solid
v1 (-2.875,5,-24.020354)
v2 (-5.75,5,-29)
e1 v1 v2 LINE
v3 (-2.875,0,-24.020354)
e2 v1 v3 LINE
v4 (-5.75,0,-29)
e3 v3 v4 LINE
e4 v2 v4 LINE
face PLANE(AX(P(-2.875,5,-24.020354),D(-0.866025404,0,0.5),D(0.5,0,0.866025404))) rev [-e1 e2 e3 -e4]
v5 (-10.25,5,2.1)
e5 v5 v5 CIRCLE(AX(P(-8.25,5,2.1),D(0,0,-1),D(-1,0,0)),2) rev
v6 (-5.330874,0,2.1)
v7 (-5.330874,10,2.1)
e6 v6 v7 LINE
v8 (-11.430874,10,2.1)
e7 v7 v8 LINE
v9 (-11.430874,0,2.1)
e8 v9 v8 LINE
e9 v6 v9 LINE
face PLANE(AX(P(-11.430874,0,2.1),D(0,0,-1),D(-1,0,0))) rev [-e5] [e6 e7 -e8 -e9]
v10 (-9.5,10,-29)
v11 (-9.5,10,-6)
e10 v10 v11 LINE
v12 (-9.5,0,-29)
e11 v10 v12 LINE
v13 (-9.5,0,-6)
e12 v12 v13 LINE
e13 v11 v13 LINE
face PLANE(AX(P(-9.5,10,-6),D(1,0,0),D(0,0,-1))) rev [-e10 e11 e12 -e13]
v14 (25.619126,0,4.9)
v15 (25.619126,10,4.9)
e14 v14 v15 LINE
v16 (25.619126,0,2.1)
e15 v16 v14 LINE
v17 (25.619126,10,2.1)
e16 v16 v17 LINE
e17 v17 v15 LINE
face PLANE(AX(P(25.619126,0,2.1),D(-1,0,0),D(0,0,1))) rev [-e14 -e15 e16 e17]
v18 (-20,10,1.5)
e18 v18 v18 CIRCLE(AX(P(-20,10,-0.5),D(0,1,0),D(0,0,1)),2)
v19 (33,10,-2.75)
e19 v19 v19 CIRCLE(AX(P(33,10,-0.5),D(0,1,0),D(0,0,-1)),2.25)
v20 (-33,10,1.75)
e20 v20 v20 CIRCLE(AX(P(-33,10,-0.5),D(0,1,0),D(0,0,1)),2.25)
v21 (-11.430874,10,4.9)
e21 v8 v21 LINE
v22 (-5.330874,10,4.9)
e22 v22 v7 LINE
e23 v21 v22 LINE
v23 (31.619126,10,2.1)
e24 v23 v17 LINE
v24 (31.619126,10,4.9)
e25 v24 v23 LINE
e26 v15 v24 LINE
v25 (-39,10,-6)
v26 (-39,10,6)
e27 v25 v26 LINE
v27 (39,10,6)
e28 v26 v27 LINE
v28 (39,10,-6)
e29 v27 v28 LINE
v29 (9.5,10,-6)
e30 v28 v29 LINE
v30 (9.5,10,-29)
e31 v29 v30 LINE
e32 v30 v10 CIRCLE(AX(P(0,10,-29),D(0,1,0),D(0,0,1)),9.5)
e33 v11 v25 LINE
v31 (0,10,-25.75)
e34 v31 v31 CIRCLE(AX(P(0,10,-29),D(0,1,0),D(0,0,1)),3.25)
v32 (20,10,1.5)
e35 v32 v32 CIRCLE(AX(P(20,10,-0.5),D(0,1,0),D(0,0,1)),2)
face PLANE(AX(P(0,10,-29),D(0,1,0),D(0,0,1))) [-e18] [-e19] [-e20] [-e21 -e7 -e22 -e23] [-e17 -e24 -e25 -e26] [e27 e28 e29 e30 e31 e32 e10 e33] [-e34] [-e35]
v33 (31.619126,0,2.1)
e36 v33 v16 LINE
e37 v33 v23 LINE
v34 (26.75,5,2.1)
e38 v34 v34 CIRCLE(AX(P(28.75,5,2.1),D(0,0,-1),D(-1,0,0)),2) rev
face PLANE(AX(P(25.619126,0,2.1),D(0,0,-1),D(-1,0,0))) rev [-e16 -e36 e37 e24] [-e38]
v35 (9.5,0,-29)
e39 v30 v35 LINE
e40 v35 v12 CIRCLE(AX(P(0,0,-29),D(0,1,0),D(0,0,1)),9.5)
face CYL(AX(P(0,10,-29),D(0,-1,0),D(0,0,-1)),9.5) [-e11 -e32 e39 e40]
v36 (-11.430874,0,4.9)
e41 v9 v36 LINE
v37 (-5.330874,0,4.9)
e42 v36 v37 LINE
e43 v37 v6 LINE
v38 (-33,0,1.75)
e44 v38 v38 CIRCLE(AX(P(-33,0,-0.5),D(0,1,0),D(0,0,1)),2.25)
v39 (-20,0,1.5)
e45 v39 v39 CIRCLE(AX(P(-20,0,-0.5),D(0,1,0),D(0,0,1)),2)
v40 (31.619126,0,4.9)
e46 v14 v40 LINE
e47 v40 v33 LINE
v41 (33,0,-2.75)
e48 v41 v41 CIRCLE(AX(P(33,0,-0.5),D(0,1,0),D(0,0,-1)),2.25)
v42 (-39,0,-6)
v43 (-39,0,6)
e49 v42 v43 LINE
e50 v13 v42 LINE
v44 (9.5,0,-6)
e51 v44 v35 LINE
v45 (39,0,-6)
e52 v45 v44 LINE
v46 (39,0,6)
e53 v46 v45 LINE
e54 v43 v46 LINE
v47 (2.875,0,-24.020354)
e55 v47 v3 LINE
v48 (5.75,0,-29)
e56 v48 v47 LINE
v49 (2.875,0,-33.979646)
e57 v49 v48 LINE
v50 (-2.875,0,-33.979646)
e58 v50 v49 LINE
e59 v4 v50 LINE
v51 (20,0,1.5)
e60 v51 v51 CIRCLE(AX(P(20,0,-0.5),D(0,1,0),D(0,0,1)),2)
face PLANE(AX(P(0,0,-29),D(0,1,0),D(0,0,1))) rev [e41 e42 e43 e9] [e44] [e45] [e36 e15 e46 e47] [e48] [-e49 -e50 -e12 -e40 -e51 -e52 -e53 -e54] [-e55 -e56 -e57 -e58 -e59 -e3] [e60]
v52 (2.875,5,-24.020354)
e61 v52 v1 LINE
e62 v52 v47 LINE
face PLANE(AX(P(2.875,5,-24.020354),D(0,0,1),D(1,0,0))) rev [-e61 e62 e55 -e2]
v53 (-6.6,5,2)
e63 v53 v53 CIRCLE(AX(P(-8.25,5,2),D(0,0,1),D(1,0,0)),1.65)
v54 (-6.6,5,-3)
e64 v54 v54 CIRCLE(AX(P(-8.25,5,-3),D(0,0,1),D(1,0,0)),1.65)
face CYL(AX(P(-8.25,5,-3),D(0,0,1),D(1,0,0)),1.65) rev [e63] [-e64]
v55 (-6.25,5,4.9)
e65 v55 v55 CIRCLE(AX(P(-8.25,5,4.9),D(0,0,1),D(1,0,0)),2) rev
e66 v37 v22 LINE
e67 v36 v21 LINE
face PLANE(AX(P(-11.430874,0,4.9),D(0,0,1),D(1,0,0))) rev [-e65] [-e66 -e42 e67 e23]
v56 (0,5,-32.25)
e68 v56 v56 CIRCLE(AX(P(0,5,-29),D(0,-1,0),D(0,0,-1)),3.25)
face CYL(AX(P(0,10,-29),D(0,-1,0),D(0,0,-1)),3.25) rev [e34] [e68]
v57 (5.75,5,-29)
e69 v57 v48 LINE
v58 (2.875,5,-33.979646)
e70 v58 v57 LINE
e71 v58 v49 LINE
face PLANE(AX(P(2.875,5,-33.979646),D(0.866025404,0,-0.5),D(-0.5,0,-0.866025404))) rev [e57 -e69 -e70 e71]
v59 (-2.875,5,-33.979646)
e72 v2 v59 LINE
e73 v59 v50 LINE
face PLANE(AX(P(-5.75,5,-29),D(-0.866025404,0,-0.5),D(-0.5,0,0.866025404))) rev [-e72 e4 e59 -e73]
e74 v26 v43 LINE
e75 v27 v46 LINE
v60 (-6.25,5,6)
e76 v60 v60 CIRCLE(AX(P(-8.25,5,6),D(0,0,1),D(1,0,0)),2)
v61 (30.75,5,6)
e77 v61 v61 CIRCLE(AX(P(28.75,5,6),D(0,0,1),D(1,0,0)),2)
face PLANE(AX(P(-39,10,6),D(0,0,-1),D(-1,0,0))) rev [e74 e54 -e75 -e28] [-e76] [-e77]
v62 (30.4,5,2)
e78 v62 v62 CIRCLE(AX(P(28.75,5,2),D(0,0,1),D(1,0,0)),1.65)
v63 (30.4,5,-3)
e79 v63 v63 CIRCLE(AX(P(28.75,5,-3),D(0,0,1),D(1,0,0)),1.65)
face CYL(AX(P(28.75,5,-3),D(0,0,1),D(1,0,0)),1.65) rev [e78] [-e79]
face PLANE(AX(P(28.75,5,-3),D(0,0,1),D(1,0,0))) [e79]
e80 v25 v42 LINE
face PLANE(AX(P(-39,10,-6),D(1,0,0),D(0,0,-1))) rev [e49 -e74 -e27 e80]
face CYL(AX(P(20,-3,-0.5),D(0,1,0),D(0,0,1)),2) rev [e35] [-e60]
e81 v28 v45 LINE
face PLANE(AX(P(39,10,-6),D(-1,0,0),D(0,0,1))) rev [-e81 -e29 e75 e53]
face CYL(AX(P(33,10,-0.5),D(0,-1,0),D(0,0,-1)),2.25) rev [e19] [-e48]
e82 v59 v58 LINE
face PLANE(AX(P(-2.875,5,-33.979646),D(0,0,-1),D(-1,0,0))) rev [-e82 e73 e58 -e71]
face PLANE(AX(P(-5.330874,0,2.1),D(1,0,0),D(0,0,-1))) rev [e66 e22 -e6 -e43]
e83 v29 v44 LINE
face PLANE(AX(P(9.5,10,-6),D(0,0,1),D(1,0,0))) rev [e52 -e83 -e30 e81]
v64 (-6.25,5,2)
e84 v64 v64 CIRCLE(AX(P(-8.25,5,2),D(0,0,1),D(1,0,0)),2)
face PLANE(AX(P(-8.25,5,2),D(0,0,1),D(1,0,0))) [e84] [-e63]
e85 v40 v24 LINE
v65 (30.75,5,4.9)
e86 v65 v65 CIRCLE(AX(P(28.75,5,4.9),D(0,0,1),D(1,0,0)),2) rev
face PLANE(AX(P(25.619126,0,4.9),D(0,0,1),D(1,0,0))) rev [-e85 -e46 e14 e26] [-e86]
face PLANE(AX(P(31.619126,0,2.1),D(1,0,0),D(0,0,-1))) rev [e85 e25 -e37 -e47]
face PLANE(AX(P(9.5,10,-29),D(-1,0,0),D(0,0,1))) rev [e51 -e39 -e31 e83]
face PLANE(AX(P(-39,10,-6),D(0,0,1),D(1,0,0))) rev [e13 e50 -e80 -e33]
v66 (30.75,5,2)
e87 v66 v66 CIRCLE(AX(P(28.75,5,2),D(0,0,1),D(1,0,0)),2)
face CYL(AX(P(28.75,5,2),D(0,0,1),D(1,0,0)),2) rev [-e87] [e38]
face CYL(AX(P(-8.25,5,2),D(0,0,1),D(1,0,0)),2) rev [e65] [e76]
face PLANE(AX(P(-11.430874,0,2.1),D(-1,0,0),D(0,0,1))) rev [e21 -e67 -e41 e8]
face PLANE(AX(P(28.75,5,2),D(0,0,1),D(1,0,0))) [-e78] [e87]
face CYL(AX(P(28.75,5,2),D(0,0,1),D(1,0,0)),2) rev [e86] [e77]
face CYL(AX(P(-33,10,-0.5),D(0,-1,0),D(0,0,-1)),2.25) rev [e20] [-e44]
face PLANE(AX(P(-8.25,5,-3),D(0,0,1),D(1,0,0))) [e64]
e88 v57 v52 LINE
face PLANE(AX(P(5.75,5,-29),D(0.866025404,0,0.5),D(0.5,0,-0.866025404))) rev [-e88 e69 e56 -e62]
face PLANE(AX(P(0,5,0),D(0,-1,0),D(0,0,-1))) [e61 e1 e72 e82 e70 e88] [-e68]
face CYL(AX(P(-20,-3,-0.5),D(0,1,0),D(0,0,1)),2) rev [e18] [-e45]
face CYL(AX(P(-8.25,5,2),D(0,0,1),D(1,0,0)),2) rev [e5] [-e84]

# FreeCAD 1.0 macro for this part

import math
import FreeCAD as App
import Part
import Sketcher

V = App.Vector
Q = App.Units.Quantity


def add_polygon(sketch, points):
    """Adds a closed chain of lines whose ends are joined by coincident constraints."""
    first, n = sketch.GeometryCount, len(points)
    for a, b in zip(points, points[1:] + points[:1]):
        sketch.addGeometry(Part.LineSegment(App.Vector(*a, 0), App.Vector(*b, 0)), False)
    for i in range(n):
        sketch.addConstraint(Sketcher.Constraint("Coincident", first + i, 2, first + (i + 1) % n, 1))

doc = App.newDocument("Part")
body = doc.addObject("PartDesign::Body", "Body")

sketch1 = body.newObject("Sketcher::SketchObject", "Sketch")
sketch1.AttachmentSupport = (doc.getObject("XZ_Plane"), [""])
sketch1.MapMode = "FlatFace"
sketch1.addGeometry(Part.LineSegment(V(39, -6, 0), V(9.5, -6, 0)), False)
sketch1.addGeometry(Part.LineSegment(V(9.5, -6, 0), V(9.5, -29, 0)), False)
sketch1.addGeometry(Part.ArcOfCircle(Part.Circle(V(0, -29, 0), V(0, 0, 1), 9.5), math.radians(180), math.radians(360)), False)
sketch1.addGeometry(Part.LineSegment(V(-9.5, -29, 0), V(-9.5, -6, 0)), False)
sketch1.addGeometry(Part.LineSegment(V(-9.5, -6, 0), V(-39, -6, 0)), False)
sketch1.addGeometry(Part.LineSegment(V(-39, -6, 0), V(-39, 6, 0)), False)
sketch1.addGeometry(Part.LineSegment(V(-39, 6, 0), V(39, 6, 0)), False)
sketch1.addGeometry(Part.LineSegment(V(39, 6, 0), V(39, -6, 0)), False)
sketch1.addGeometry(Part.Circle(V(33, -0.5, 0), V(0, 0, 1), 2.25), False)
sketch1.addGeometry(Part.Circle(V(-33, -0.5, 0), V(0, 0, 1), 2.25), False)
sketch1.addGeometry(Part.Circle(V(0, -29, 0), V(0, 0, 1), 3.25), False)
sketch1.addConstraint(Sketcher.Constraint("Coincident", 0, 2, 1, 1))
sketch1.addConstraint(Sketcher.Constraint("Tangent", 1, 2, 2, 2))
sketch1.addConstraint(Sketcher.Constraint("Tangent", 2, 1, 3, 1))
sketch1.addConstraint(Sketcher.Constraint("Coincident", 3, 2, 4, 1))
sketch1.addConstraint(Sketcher.Constraint("Coincident", 4, 2, 5, 1))
sketch1.addConstraint(Sketcher.Constraint("Coincident", 5, 2, 6, 1))
sketch1.addConstraint(Sketcher.Constraint("Coincident", 6, 2, 7, 1))
sketch1.addConstraint(Sketcher.Constraint("Coincident", 7, 2, 0, 1))
sketch1.addConstraint(Sketcher.Constraint("Horizontal", 0))
sketch1.addConstraint(Sketcher.Constraint("Vertical", 1))
sketch1.addConstraint(Sketcher.Constraint("Vertical", 3))
sketch1.addConstraint(Sketcher.Constraint("Horizontal", 4))
sketch1.addConstraint(Sketcher.Constraint("Vertical", 5))
sketch1.addConstraint(Sketcher.Constraint("Horizontal", 6))
sketch1.addConstraint(Sketcher.Constraint("Vertical", 7))
sketch1.addConstraint(Sketcher.Constraint("Coincident", 10, 3, 2, 3))
sketch1.addConstraint(Sketcher.Constraint("Equal", 8, 9))
sketch1.addConstraint(Sketcher.Constraint("Symmetric", 4, 2, 6, 2, -1, 1))
sketch1.addConstraint(Sketcher.Constraint("Symmetric", 8, 3, 9, 3, -2))
sketch1.addConstraint(Sketcher.Constraint("Symmetric", 0, 2, 3, 2, -2))
sketch1.addConstraint(Sketcher.Constraint("Diameter", 8, 4.5))
sketch1.addConstraint(Sketcher.Constraint("Diameter", 10, 6.5))
sketch1.addConstraint(Sketcher.Constraint("Radius", 2, 9.5))
sketch1.addConstraint(Sketcher.Constraint("DistanceX", 6, 1, 6, 2, 78.0))
sketch1.addConstraint(Sketcher.Constraint("DistanceY", 1, 2, 1, 1, 23.0))
sketch1.addConstraint(Sketcher.Constraint("DistanceY", 5, 1, 5, 2, 12.0))
sketch1.addConstraint(Sketcher.Constraint("DistanceX", -1, 1, 8, 3, 33.0))
sketch1.addConstraint(Sketcher.Constraint("DistanceY", 8, 3, -1, 1, 0.5))
pad1 = body.newObject("PartDesign::Pad", "Pad")
pad1.Profile = sketch1
pad1.Length = 10
pad1.Reversed = True

sketch2 = body.newObject("Sketcher::SketchObject", "Sketch001")
sketch2.AttachmentSupport = (doc.getObject("XZ_Plane"), [""])
sketch2.MapMode = "FlatFace"
add_polygon(sketch2, [(5.75, -29), (2.875, -24.020354), (-2.875, -24.020354), (-5.75, -29), (-2.875, -33.979646), (2.875, -33.979646)])
sketch2.addConstraint(Sketcher.Constraint("Horizontal", 1))
sketch2.addConstraint(Sketcher.Constraint("Horizontal", 4))
sketch2.addConstraint(Sketcher.Constraint("Symmetric", 2, 2, 5, 2, -2))
sketch2.addConstraint(Sketcher.Constraint("Parallel", 0, 3))
sketch2.addConstraint(Sketcher.Constraint("Parallel", 2, 5))
sketch2.addConstraint(Sketcher.Constraint("Vertical", 1, 2, 3, 2))
sketch2.addConstraint(Sketcher.Constraint("Vertical", 0, 2, 4, 2))
sketch2.addConstraint(Sketcher.Constraint("Angle", 0, Q("120 deg")))
sketch2.addConstraint(Sketcher.Constraint("DistanceY", 2, 2, -1, 1, 29.0))
sketch2.addConstraint(Sketcher.Constraint("DistanceX", 1, 2, 1, 1, 5.75))
sketch2.addConstraint(Sketcher.Constraint("DistanceX", 2, 2, 5, 2, 11.5))
pocket1 = body.newObject("PartDesign::Pocket", "Pocket")
pocket1.Profile = sketch2
pocket1.Length = 5

sketch3 = body.newObject("Sketcher::SketchObject", "Sketch002")
sketch3.AttachmentSupport = (doc.getObject("XY_Plane"), [""])
sketch3.MapMode = "FlatFace"
sketch3.AttachmentOffset = App.Placement(V(0, 0, 6), App.Rotation())
sketch3.addGeometry(Part.Circle(V(-8.25, 5, 0), V(0, 0, 1), 2), False)
sketch3.addGeometry(Part.Circle(V(28.75, 5, 0), V(0, 0, 1), 2), False)
sketch3.addConstraint(Sketcher.Constraint("Equal", 0, 1))
sketch3.addConstraint(Sketcher.Constraint("Horizontal", 0, 3, 1, 3))
sketch3.addConstraint(Sketcher.Constraint("Diameter", 0, 4.0))
sketch3.addConstraint(Sketcher.Constraint("DistanceY", -1, 1, 0, 3, 5.0))
sketch3.addConstraint(Sketcher.Constraint("DistanceX", 0, 3, 1, 3, 37.0))
sketch3.addConstraint(Sketcher.Constraint("DistanceX", 0, 3, -1, 1, 8.25))
pocket2 = body.newObject("PartDesign::Pocket", "Pocket001")
pocket2.Profile = sketch3
pocket2.Length = 4

sketch4 = body.newObject("Sketcher::SketchObject", "Sketch003")
sketch4.AttachmentSupport = (doc.getObject("XZ_Plane"), [""])
sketch4.MapMode = "FlatFace"
sketch4.AttachmentOffset = App.Placement(V(0, 0, -10), App.Rotation())
add_polygon(sketch4, [(-11.430874, 2.1), (-11.430874, 4.9), (-5.330874, 4.9), (-5.330874, 2.1)])
add_polygon(sketch4, [(25.619126, 2.1), (25.619126, 4.9), (31.619126, 4.9), (31.619126, 2.1)])
sketch4.addConstraint(Sketcher.Constraint("Vertical", 0))
sketch4.addConstraint(Sketcher.Constraint("Horizontal", 1))
sketch4.addConstraint(Sketcher.Constraint("Vertical", 2))
sketch4.addConstraint(Sketcher.Constraint("Horizontal", 3))
sketch4.addConstraint(Sketcher.Constraint("Vertical", 4))
sketch4.addConstraint(Sketcher.Constraint("Horizontal", 5))
sketch4.addConstraint(Sketcher.Constraint("Vertical", 6))
sketch4.addConstraint(Sketcher.Constraint("Horizontal", 7))
sketch4.addConstraint(Sketcher.Constraint("Horizontal", 1, 2, 4, 2))
sketch4.addConstraint(Sketcher.Constraint("Horizontal", 3, 2, 6, 2))
sketch4.addConstraint(Sketcher.Constraint("DistanceX", 5, 1, 5, 2, 6.0))
sketch4.addConstraint(Sketcher.Constraint("DistanceX", 1, 1, 1, 2, 6.1))
sketch4.addConstraint(Sketcher.Constraint("DistanceY", 0, 1, 0, 2, 2.8))
sketch4.addConstraint(Sketcher.Constraint("DistanceY", -1, 1, 0, 2, 4.9))
sketch4.addConstraint(Sketcher.Constraint("DistanceX", 1, 2, 4, 2, 30.95))
sketch4.addConstraint(Sketcher.Constraint("DistanceX", 0, 2, -1, 1, 11.430874))
pocket3 = body.newObject("PartDesign::Pocket", "Pocket002")
pocket3.Profile = sketch4
pocket3.Length = 10
pocket3.Reversed = True

sketch5 = body.newObject("Sketcher::SketchObject", "Sketch004")
sketch5.AttachmentSupport = (doc.getObject("XY_Plane"), [""])
sketch5.MapMode = "FlatFace"
sketch5.AttachmentOffset = App.Placement(V(0, 0, 2), App.Rotation())
sketch5.addGeometry(Part.Circle(V(-8.25, 5, 0), V(0, 0, 1), 1.65), False)
sketch5.addGeometry(Part.Circle(V(28.75, 5, 0), V(0, 0, 1), 1.65), False)
sketch5.addConstraint(Sketcher.Constraint("Equal", 0, 1))
sketch5.addConstraint(Sketcher.Constraint("Horizontal", 0, 3, 1, 3))
sketch5.addConstraint(Sketcher.Constraint("Diameter", 0, 3.3))
sketch5.addConstraint(Sketcher.Constraint("DistanceY", -1, 1, 0, 3, 5.0))
sketch5.addConstraint(Sketcher.Constraint("DistanceX", 0, 3, 1, 3, 37.0))
sketch5.addConstraint(Sketcher.Constraint("DistanceX", 0, 3, -1, 1, 8.25))
pocket4 = body.newObject("PartDesign::Pocket", "Pocket003")
pocket4.Profile = sketch5
pocket4.Length = 5

sketch6 = body.newObject("Sketcher::SketchObject", "Sketch005")
sketch6.AttachmentSupport = (doc.getObject("XZ_Plane"), [""])
sketch6.MapMode = "FlatFace"
sketch6.AttachmentOffset = App.Placement(V(0, 0, -10), App.Rotation())
sketch6.addGeometry(Part.Circle(V(-20, -0.5, 0), V(0, 0, 1), 2), False)
sketch6.addGeometry(Part.Circle(V(20, -0.5, 0), V(0, 0, 1), 2), False)
sketch6.addConstraint(Sketcher.Constraint("Equal", 0, 1))
sketch6.addConstraint(Sketcher.Constraint("Symmetric", 0, 3, 1, 3, -2))
sketch6.addConstraint(Sketcher.Constraint("Diameter", 0, 4.0))
sketch6.addConstraint(Sketcher.Constraint("DistanceX", 0, 3, -1, 1, 20.0))
sketch6.addConstraint(Sketcher.Constraint("DistanceY", 0, 3, -1, 1, 0.5))
pocket5 = body.newObject("PartDesign::Pocket", "Pocket004")
pocket5.Profile = sketch6
pocket5.Length = 13
pocket5.Reversed = True

doc.recompute()
